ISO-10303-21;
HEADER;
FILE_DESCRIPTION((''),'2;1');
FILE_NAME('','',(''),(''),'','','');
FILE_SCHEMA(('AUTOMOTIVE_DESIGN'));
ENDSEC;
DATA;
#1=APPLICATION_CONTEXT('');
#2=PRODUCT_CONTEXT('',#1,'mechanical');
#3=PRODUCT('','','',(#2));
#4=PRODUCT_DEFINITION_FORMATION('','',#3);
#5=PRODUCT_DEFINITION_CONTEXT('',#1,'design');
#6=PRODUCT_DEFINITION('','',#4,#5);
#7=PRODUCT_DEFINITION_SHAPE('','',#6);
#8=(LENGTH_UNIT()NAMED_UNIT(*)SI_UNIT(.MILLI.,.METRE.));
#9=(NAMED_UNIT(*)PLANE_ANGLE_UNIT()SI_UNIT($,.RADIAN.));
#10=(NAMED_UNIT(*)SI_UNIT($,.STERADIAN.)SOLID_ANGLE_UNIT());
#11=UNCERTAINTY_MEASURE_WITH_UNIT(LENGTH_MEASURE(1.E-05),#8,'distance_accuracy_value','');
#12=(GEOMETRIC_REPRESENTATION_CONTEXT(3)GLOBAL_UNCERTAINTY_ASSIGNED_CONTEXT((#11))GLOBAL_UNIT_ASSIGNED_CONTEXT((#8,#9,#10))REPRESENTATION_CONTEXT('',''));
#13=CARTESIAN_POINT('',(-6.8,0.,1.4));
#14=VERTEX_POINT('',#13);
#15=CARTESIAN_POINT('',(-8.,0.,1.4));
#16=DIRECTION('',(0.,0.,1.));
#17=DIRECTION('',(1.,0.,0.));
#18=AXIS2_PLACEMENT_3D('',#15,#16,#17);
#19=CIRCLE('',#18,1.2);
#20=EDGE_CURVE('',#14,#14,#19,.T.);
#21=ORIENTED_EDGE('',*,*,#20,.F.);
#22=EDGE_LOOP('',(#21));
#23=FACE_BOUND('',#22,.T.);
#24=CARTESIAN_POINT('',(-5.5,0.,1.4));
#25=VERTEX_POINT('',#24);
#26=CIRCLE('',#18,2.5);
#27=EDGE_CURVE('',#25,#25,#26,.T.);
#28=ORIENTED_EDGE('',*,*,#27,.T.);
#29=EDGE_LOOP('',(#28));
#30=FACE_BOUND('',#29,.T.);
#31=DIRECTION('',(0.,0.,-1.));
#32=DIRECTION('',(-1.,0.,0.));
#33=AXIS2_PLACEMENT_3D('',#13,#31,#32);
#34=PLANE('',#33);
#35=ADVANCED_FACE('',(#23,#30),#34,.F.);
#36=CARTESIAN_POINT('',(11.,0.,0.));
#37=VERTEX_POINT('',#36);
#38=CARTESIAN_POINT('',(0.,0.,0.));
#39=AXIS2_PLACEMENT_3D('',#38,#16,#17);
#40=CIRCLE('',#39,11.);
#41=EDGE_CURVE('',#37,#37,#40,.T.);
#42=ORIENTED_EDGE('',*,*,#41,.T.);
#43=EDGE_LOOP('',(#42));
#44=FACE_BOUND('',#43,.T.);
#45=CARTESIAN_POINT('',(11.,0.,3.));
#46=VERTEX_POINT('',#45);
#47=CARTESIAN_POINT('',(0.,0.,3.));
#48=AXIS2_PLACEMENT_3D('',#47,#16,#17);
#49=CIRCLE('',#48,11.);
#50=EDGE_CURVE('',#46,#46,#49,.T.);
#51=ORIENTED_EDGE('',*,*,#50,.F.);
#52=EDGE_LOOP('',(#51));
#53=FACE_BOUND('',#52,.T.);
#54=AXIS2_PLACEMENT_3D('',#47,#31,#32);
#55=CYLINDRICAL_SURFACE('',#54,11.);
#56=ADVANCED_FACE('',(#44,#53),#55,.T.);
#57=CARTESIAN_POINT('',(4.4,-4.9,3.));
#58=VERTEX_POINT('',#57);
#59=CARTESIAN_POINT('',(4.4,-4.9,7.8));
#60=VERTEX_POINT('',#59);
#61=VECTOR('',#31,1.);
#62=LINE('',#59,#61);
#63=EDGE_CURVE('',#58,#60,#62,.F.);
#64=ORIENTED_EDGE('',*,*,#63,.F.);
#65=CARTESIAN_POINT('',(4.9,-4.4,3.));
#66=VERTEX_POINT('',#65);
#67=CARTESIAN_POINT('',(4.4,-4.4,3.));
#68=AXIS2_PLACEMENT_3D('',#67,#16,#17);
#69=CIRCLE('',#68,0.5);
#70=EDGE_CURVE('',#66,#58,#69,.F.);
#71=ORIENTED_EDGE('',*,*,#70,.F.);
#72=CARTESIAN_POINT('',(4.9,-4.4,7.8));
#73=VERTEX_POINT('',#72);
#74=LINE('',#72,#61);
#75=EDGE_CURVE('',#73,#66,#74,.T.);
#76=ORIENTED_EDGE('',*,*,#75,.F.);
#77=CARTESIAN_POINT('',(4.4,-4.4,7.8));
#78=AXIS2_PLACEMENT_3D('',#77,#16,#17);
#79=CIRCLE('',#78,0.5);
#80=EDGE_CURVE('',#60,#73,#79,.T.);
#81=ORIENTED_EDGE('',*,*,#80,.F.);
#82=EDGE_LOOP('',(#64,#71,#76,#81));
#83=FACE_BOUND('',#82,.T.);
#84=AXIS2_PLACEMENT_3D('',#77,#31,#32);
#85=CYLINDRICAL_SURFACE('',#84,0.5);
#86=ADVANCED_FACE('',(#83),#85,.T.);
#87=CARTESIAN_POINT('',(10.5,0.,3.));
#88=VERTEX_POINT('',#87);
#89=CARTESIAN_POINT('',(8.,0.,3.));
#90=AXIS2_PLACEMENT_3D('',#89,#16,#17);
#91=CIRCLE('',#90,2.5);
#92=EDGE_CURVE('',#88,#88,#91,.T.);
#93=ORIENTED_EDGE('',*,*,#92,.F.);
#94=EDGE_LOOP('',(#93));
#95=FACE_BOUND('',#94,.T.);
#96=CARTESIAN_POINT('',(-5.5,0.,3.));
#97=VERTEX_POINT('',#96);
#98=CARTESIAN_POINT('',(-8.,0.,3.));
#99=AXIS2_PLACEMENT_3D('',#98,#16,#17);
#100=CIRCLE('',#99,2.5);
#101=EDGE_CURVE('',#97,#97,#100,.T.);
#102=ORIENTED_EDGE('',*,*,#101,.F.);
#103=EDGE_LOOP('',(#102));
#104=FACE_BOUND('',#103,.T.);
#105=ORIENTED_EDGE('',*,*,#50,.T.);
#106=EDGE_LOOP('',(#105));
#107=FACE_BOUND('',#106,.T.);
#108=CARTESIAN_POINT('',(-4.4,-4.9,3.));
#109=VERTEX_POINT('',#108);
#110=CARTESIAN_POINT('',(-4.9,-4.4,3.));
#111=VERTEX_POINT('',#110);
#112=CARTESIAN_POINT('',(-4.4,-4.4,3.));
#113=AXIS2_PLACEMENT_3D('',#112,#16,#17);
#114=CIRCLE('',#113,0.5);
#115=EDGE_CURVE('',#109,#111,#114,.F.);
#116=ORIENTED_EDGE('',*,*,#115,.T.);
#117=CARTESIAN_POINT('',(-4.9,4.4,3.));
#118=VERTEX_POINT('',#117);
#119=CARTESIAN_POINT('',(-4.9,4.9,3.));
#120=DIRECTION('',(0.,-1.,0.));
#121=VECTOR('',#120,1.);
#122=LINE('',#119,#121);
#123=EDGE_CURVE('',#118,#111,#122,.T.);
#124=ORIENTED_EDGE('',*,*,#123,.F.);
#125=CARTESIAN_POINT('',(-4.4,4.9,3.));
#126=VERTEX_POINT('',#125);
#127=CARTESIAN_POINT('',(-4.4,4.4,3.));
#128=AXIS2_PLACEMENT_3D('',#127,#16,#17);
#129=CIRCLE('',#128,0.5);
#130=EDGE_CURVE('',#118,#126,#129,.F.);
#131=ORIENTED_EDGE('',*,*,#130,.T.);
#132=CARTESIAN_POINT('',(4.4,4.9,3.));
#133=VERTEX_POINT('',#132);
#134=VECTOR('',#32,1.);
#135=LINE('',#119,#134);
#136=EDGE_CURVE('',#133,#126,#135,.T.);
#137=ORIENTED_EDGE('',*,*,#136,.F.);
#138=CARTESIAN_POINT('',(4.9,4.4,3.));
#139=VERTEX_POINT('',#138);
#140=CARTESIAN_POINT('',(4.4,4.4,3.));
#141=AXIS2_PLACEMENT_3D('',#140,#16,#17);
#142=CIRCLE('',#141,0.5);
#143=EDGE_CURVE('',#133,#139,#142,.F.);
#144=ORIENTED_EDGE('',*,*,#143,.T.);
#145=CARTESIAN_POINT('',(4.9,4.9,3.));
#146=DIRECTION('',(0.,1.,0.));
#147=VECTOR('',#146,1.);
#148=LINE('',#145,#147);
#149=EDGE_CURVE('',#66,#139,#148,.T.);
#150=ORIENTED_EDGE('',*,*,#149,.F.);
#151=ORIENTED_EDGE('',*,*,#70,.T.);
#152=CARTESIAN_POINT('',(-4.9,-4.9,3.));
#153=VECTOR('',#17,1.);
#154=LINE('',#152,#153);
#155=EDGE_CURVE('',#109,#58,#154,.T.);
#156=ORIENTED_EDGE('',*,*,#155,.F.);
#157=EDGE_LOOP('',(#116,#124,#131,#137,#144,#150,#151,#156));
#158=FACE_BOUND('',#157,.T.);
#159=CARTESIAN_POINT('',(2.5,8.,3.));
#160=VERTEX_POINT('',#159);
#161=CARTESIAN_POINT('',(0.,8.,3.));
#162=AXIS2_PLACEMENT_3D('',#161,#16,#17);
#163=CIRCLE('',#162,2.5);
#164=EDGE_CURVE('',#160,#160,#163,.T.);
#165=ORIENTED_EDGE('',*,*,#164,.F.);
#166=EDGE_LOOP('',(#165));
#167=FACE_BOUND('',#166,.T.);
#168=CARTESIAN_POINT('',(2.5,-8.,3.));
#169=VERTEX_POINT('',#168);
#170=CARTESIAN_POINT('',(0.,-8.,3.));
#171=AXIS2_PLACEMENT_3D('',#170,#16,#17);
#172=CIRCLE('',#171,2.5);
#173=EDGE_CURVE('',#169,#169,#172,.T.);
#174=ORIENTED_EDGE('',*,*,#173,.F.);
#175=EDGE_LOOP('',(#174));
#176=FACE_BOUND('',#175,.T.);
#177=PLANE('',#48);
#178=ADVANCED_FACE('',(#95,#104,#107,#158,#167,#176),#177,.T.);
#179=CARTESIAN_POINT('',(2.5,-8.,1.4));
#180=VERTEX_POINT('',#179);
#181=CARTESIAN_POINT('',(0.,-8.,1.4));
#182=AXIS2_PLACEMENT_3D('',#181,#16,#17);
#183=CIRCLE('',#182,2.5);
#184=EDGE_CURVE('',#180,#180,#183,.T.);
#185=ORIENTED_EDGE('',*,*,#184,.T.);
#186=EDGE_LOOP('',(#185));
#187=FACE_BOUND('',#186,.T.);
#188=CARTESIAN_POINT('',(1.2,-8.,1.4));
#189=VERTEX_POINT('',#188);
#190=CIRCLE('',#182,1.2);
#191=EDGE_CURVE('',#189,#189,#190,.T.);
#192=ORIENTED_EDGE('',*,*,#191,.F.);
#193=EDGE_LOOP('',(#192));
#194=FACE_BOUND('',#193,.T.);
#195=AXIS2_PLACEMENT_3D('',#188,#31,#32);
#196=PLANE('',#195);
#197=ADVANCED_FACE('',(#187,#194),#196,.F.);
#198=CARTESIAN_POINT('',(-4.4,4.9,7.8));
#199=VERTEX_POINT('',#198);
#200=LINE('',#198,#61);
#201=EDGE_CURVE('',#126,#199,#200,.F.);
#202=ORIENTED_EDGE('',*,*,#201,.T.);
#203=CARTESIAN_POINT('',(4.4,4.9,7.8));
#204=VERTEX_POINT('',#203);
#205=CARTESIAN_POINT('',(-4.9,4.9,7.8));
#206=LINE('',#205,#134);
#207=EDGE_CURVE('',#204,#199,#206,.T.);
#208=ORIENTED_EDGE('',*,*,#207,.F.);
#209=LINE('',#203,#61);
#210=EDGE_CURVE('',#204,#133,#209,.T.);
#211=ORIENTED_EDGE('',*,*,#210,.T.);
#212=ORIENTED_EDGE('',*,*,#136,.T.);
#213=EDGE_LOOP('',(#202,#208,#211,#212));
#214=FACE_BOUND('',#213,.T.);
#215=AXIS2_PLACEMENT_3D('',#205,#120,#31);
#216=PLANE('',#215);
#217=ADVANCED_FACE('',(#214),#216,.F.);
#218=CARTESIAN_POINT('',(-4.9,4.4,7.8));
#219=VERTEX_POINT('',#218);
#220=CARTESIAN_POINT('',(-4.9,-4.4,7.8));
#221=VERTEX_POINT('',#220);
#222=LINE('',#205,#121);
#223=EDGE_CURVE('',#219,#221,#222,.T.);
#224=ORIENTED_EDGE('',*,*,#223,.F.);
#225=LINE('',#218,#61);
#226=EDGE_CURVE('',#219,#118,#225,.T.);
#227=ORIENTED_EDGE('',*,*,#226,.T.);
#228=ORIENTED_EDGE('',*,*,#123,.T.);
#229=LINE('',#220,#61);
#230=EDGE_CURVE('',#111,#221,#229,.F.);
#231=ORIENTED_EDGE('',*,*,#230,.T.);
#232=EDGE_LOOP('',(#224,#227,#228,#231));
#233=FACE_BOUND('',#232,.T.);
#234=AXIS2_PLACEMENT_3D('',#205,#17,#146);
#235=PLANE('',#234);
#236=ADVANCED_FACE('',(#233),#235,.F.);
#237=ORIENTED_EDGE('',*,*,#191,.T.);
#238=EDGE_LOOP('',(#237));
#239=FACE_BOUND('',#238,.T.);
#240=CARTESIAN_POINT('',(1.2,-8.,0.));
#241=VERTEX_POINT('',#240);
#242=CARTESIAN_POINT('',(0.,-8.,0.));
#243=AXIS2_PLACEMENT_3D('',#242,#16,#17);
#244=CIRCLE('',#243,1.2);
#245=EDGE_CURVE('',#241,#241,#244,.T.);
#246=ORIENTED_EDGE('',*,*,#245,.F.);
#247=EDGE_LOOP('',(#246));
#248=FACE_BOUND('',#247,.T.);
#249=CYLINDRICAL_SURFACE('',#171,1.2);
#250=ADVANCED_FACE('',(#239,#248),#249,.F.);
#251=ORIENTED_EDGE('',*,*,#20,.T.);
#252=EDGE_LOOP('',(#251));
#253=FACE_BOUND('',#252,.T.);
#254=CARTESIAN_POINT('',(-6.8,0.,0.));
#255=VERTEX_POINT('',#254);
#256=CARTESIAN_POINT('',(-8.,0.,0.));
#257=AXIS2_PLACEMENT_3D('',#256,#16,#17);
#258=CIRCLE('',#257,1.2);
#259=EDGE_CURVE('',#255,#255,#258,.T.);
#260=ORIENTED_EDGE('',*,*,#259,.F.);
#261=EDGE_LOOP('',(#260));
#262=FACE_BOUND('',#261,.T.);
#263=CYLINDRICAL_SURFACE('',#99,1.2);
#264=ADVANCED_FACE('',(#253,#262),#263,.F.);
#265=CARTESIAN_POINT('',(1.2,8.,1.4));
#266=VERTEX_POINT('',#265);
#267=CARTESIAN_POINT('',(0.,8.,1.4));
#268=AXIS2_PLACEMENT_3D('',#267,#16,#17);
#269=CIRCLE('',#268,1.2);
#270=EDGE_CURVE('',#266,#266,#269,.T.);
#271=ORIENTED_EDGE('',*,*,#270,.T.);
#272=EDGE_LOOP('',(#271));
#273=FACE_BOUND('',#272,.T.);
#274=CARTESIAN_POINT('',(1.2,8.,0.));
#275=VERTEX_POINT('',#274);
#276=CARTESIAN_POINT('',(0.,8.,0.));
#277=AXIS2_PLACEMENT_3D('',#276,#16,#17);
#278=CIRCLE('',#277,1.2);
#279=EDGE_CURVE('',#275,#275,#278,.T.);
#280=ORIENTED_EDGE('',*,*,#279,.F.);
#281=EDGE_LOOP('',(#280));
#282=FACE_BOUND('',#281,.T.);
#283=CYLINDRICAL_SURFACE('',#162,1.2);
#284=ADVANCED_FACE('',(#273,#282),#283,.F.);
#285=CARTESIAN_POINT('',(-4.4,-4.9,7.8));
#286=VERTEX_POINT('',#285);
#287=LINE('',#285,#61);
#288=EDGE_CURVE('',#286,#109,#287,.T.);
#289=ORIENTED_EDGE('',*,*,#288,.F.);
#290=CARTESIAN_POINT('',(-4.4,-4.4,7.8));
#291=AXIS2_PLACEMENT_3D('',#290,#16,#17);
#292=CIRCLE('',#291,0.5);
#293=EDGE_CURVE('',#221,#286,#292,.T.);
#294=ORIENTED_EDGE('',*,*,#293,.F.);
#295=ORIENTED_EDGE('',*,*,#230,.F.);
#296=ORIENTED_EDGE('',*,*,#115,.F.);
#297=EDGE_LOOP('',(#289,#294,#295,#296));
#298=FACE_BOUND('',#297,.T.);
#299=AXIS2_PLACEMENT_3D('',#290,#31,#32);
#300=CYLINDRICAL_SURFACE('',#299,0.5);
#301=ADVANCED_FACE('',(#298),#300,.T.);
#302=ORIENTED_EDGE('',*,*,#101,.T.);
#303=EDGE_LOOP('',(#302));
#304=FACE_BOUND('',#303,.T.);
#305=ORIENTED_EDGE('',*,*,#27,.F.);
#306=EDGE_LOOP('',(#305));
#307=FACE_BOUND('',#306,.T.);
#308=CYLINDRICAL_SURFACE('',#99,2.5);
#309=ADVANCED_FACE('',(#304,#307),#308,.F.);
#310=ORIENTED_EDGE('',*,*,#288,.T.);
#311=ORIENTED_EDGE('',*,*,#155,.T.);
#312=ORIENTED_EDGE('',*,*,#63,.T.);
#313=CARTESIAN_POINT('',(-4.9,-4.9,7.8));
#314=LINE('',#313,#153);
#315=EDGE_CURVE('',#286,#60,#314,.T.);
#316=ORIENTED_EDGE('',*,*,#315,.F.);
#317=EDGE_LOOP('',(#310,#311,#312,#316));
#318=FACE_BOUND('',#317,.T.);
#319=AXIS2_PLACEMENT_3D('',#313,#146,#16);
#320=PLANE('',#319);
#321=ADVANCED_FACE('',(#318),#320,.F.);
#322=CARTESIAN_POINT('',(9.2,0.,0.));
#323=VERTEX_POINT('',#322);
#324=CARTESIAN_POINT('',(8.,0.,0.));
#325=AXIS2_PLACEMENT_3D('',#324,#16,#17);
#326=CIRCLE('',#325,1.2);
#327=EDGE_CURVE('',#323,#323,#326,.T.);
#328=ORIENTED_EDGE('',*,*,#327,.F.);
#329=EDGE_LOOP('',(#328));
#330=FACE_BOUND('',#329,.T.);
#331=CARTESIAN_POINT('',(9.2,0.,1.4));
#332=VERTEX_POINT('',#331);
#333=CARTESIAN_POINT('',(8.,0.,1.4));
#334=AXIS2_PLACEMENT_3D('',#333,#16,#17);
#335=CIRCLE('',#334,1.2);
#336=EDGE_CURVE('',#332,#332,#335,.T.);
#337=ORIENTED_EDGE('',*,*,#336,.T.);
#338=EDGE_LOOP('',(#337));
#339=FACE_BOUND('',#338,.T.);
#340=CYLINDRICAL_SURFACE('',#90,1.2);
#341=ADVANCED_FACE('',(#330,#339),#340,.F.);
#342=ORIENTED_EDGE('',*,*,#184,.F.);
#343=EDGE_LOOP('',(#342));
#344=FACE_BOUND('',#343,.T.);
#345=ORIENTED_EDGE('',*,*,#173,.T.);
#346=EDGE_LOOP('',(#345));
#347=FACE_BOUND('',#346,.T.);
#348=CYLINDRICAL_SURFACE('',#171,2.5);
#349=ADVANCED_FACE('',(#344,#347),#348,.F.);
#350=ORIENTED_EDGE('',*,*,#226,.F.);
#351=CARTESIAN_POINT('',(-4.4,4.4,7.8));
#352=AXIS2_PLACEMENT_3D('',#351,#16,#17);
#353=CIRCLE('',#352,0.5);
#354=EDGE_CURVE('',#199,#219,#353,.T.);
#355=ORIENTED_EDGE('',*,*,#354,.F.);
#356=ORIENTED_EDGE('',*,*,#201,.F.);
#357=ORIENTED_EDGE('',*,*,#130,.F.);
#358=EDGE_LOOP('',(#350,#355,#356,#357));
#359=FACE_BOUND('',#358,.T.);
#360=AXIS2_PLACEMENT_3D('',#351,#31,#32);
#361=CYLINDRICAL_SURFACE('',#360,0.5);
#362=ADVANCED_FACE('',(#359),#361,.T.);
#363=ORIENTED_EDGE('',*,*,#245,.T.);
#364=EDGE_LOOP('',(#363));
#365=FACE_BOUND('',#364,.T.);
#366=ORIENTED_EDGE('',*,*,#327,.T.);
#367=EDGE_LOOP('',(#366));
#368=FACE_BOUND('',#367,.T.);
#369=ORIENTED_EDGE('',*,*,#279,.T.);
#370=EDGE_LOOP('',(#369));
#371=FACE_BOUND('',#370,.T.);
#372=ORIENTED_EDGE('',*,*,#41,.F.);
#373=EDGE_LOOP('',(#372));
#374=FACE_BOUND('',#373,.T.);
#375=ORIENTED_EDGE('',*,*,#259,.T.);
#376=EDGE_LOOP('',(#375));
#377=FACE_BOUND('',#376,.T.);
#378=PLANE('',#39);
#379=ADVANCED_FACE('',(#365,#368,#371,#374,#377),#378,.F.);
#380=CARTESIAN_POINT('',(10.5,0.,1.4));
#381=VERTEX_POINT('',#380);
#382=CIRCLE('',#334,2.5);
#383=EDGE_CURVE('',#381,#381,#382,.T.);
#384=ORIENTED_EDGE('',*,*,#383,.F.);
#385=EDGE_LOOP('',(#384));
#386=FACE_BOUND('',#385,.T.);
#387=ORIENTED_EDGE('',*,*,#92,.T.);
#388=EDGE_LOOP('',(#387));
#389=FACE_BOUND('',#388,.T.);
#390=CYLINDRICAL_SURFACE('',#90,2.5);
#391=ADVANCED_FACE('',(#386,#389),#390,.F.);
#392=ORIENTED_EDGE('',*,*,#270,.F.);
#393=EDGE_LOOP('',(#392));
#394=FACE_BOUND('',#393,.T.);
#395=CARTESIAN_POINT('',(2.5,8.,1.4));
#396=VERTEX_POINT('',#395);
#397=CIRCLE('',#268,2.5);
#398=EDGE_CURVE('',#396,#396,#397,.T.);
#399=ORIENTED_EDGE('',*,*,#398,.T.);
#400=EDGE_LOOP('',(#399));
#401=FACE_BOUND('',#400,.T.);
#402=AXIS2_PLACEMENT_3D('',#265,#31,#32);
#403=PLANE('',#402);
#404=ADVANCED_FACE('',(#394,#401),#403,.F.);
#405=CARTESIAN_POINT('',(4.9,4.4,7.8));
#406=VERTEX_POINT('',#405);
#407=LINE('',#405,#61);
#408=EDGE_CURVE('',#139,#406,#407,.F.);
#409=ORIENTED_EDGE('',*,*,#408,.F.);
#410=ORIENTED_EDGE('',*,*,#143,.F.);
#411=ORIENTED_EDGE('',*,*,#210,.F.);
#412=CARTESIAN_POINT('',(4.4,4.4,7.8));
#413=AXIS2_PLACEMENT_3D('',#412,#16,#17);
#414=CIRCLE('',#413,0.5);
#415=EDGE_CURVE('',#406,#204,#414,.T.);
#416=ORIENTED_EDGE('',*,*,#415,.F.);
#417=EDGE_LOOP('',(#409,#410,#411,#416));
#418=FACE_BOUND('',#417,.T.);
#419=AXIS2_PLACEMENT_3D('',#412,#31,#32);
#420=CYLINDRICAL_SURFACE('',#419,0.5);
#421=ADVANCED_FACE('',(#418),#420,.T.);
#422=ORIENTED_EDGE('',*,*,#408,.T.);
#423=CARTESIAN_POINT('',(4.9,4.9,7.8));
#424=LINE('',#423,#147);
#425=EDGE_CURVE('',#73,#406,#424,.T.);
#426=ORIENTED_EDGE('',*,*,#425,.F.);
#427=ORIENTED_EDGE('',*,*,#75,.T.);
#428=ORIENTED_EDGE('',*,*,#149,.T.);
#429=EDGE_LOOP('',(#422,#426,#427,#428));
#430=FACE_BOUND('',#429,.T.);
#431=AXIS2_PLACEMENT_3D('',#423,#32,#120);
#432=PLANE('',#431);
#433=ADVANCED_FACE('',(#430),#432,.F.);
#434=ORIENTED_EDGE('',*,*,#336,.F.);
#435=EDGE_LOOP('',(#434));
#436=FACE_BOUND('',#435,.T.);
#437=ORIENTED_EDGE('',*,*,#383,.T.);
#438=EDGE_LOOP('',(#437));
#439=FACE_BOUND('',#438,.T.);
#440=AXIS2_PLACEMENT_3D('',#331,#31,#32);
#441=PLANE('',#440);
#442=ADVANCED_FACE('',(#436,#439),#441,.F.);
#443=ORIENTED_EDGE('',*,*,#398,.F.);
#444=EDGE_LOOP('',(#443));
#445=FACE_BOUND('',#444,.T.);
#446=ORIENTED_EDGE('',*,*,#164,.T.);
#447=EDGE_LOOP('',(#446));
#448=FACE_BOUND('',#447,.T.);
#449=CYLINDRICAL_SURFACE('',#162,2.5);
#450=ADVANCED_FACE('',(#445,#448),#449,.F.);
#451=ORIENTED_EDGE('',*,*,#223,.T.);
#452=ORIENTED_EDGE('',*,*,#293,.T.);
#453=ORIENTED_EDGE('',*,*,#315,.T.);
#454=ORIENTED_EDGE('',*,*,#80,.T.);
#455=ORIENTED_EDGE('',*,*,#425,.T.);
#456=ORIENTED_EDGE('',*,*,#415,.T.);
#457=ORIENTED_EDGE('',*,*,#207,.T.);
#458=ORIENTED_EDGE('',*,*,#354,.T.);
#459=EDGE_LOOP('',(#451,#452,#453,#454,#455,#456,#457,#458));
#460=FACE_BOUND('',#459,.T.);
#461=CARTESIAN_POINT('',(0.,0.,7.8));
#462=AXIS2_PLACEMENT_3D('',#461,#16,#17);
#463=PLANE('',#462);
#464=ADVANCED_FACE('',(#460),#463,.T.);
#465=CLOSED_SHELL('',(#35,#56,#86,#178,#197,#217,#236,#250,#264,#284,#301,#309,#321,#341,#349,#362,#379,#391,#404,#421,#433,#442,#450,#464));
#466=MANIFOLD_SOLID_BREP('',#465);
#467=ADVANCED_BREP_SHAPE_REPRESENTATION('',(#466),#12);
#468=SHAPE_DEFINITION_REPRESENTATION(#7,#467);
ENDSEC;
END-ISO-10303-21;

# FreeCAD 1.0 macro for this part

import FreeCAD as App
import Part
import Sketcher


def edges_at(feature, points):
    """Names of the edges that pass closest to the given points."""
    edges = feature.Shape.Edges
    near = lambda p: min(range(len(edges)), key=lambda i: edges[i].distToShape(Part.Vertex(*p))[0])
    return sorted({f"Edge{near(p) + 1}" for p in points})

doc = App.newDocument("Part")
body = doc.addObject("PartDesign::Body", "Body")

sketch1 = body.newObject("Sketcher::SketchObject", "Sketch")
sketch1.AttachmentSupport = (doc.getObject("XY_Plane"), [""])
sketch1.MapMode = "FlatFace"
sketch1.addGeometry(Part.Circle(App.Vector(0, 0, 0), App.Vector(0, 0, 1), 11), False)
sketch1.addConstraint([
    Sketcher.Constraint("Coincident", 0, 3, -1, 1),
    Sketcher.Constraint("Diameter", 0, 22.0),
])
pad1 = body.newObject("PartDesign::Pad", "Pad")
pad1.Profile = sketch1
pad1.Length = 3

sketch2 = body.newObject("Sketcher::SketchObject", "Sketch001")
sketch2.AttachmentSupport = (doc.getObject("XY_Plane"), [""])
sketch2.MapMode = "FlatFace"
sketch2.AttachmentOffset = App.Placement(App.Vector(0, 0, 3), App.Rotation())
sketch2.addGeometry([
    Part.Circle(App.Vector(-8, 0, 0), App.Vector(0, 0, 1), 1.2),
    Part.Circle(App.Vector(0, 8, 0), App.Vector(0, 0, 1), 1.2),
    Part.Circle(App.Vector(0, -8, 0), App.Vector(0, 0, 1), 1.2),
    Part.Circle(App.Vector(8, 0, 0), App.Vector(0, 0, 1), 1.2),
], False)
sketch2.addConstraint([
    Sketcher.Constraint("Equal", 0, 1),
    Sketcher.Constraint("Equal", 1, 2),
    Sketcher.Constraint("Equal", 2, 3),
    Sketcher.Constraint("Symmetric", 1, 3, 2, 3, -1, 1),
    Sketcher.Constraint("Symmetric", 0, 3, 3, 3, -1, 1),
    Sketcher.Constraint("PointOnObject", 0, 3, -1),
    Sketcher.Constraint("PointOnObject", 1, 3, -2),
    Sketcher.Constraint("Diameter", 0, 2.4),
    Sketcher.Constraint("DistanceX", 0, 3, -1, 1, 8.0),
    Sketcher.Constraint("DistanceY", -1, 1, 1, 3, 8.0),
])
doc.recompute()
hole = body.newObject("PartDesign::Hole", "Hole")
hole.Profile = sketch2
hole.ThreadType = "None"
hole.Diameter = 2.4
hole.DepthType = "ThroughAll"
hole.HoleCutType = "Counterbore"
hole.HoleCutDiameter = 5
hole.HoleCutDepth = 1.6

sketch3 = body.newObject("Sketcher::SketchObject", "Sketch002")
sketch3.AttachmentSupport = (doc.getObject("XY_Plane"), [""])
sketch3.MapMode = "FlatFace"
sketch3.AttachmentOffset = App.Placement(App.Vector(0, 0, 3), App.Rotation())
sketch3.addGeometry([
    Part.LineSegment(App.Vector(-5, 5, 0), App.Vector(-5, -5, 0)),
    Part.LineSegment(App.Vector(-5, -5, 0), App.Vector(5, -5, 0)),
    Part.LineSegment(App.Vector(5, -5, 0), App.Vector(5, 5, 0)),
    Part.LineSegment(App.Vector(5, 5, 0), App.Vector(-5, 5, 0)),
], False)
sketch3.addConstraint([
    Sketcher.Constraint("Coincident", 0, 2, 1, 1),
    Sketcher.Constraint("Coincident", 1, 2, 2, 1),
    Sketcher.Constraint("Coincident", 2, 2, 3, 1),
    Sketcher.Constraint("Coincident", 3, 2, 0, 1),
    Sketcher.Constraint("Vertical", 0),
    Sketcher.Constraint("Horizontal", 1),
    Sketcher.Constraint("Vertical", 2),
    Sketcher.Constraint("Horizontal", 3),
    Sketcher.Constraint("Symmetric", 0, 2, 2, 2, -1, 1),
    Sketcher.Constraint("Equal", 3, 0),
    Sketcher.Constraint("DistanceX", 1, 1, 1, 2, 9.8),
])
pad2 = body.newObject("PartDesign::Pad", "Pad001")
pad2.Profile = sketch3
pad2.Length = 4.8
doc.recompute()

fillet = body.newObject("PartDesign::Fillet", "Fillet")
fillet.Base = (pad2, edges_at(pad2, [
    (4.9, -4.9, 5.4),
    (4.9, 4.9, 5.4),
    (-4.9, 4.9, 5.4),
    (-4.9, -4.9, 5.4),
]))
fillet.Radius = 0.5

doc.recompute()
